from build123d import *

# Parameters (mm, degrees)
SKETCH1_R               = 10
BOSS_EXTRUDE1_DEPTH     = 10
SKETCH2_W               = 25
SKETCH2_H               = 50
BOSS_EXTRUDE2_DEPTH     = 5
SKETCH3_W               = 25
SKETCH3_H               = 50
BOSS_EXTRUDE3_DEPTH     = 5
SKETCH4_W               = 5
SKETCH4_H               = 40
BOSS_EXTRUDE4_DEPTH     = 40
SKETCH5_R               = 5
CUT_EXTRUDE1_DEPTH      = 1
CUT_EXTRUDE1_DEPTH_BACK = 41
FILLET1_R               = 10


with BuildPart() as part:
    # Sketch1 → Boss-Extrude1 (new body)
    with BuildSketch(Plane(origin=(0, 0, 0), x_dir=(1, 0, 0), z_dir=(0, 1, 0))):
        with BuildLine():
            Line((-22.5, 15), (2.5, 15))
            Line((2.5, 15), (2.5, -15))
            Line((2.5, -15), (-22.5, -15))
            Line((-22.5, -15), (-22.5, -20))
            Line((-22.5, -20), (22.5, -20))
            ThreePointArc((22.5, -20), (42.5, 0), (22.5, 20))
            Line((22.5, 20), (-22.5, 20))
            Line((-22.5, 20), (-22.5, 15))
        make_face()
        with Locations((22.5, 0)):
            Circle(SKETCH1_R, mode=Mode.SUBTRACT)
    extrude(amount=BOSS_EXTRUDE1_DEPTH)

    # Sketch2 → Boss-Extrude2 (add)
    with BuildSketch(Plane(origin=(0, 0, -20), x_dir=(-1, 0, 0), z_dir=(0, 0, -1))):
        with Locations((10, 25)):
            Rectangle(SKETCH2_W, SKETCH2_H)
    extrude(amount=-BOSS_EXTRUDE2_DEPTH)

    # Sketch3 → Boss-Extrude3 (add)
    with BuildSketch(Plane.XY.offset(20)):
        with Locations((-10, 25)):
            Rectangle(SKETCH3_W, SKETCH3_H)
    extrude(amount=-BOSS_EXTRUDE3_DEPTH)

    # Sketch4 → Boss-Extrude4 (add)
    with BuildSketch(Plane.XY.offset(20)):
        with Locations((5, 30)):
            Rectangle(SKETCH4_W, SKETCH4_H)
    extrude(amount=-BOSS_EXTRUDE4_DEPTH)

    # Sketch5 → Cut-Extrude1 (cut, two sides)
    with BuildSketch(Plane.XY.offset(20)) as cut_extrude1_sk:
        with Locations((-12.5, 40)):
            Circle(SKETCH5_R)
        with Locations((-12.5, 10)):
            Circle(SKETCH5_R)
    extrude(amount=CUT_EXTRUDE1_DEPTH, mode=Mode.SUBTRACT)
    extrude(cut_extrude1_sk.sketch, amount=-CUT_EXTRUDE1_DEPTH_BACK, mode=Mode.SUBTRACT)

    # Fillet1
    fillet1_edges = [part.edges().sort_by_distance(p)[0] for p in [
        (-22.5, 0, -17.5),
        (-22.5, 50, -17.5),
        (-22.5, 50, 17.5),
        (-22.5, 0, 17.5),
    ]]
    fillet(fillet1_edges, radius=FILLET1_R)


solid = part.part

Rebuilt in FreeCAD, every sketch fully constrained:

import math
import FreeCAD as App
import Part
import Sketcher
from FreeCAD import Vector


def edges_at(feature, points):
    """Names of the edges that pass closest to the given points."""
    edges = feature.Shape.Edges
    near = lambda p: min(range(len(edges)), key=lambda i: edges[i].distToShape(Part.Vertex(*p))[0])
    return sorted({f"Edge{near(p) + 1}" for p in points})

doc = App.newDocument("Part")
params = doc.addObject("Spreadsheet::Sheet", "Params")
for row, (alias, value) in enumerate([
    ("sketch1_diameter", "20 mm"),
    ("sketch1_radius", "20 mm"),
    ("sketch1_width", "25 mm"),
    ("sketch1_width2", "45 mm"),
    ("sketch1_height", "30 mm"),
    ("pad1_length", "10 mm"),
    ("sketch2_width", "25 mm"),
    ("sketch2_height", "50 mm"),
    ("pad2_length", "5 mm"),
    ("sketch3_width", "25 mm"),
    ("sketch3_height", "50 mm"),
    ("pad3_length", "5 mm"),
    ("sketch4_width", "5 mm"),
    ("sketch4_height", "40 mm"),
    ("pad4_length", "40 mm"),
    ("sketch5_diameter", "10 mm"),
    ("fillet_radius", "10 mm"),
], start=1):
    params.set(f"A{row}", alias)
    params.set(f"B{row}", "=" + value)
    params.setAlias(f"B{row}", alias)

body = doc.addObject("PartDesign::Body", "Body")

# Sketch on XZ plane
sketch1 = doc.addObject("Sketcher::SketchObject", "Sketch")
body.addObject(sketch1)
sketch1.AttachmentSupport = (doc.XZ_Plane, [""])
sketch1.MapMode = "FlatFace"
sketch1.addGeometry([
    Part.LineSegment(Vector(-22.5, -15, 0), Vector(2.5, -15, 0)),  # 0
    Part.LineSegment(Vector(2.5, -15, 0), Vector(2.5, 15, 0)),  # 1
    Part.LineSegment(Vector(2.5, 15, 0), Vector(-22.5, 15, 0)),  # 2
    Part.LineSegment(Vector(-22.5, 15, 0), Vector(-22.5, 20, 0)),  # 3
    Part.LineSegment(Vector(-22.5, 20, 0), Vector(22.5, 20, 0)),  # 4
    Part.ArcOfCircle(Part.Circle(Vector(22.5, 0, 0), Vector(0, 0, 1), 20), math.radians(-90), math.radians(90)),  # 5
    Part.LineSegment(Vector(22.5, -20, 0), Vector(-22.5, -20, 0)),  # 6
    Part.LineSegment(Vector(-22.5, -20, 0), Vector(-22.5, -15, 0)),  # 7
    Part.Circle(Vector(22.5, 0, 0), Vector(0, 0, 1), 10),  # 8
], False)
sketch1.addConstraint([
    Sketcher.Constraint("Coincident", 0, 2, 1, 1),
    Sketcher.Constraint("Coincident", 1, 2, 2, 1),
    Sketcher.Constraint("Coincident", 2, 2, 3, 1),
    Sketcher.Constraint("Coincident", 3, 2, 4, 1),
    Sketcher.Constraint("Tangent", 4, 2, 5, 2),
    Sketcher.Constraint("Tangent", 5, 1, 6, 1),
    Sketcher.Constraint("Coincident", 6, 2, 7, 1),
    Sketcher.Constraint("Coincident", 7, 2, 0, 1),
    Sketcher.Constraint("Horizontal", 0),
    Sketcher.Constraint("Vertical", 1),
    Sketcher.Constraint("Horizontal", 2),
    Sketcher.Constraint("Vertical", 3),
    Sketcher.Constraint("Horizontal", 4),
    Sketcher.Constraint("Horizontal", 6),
    Sketcher.Constraint("Vertical", 7),
    Sketcher.Constraint("Coincident", 8, 3, 5, 3),
    Sketcher.Constraint("Symmetric", 3, 2, 5, 1, -1, 1),
    Sketcher.Constraint("Symmetric", 2, 2, 7, 2, -1),
    Sketcher.Constraint("Diameter", 8, 20.0),
    Sketcher.Constraint("Radius", 5, 20.0),
    Sketcher.Constraint("DistanceX", 0, 1, 0, 2, 25.0),
    Sketcher.Constraint("DistanceX", 4, 1, 4, 2, 45.0),
    Sketcher.Constraint("DistanceY", 1, 1, 1, 2, 30.0),
])
sketch1.setExpression("Constraints[18]", "Params.sketch1_diameter")
sketch1.setExpression("Constraints[19]", "Params.sketch1_radius")
sketch1.setExpression("Constraints[20]", "Params.sketch1_width")
sketch1.setExpression("Constraints[21]", "Params.sketch1_width2")
sketch1.setExpression("Constraints[22]", "Params.sketch1_height")
pad1 = doc.addObject("PartDesign::Pad", "Pad")
body.addObject(pad1)
pad1.Profile = sketch1
pad1.setExpression("Length", "Params.pad1_length")
pad1.Reversed = True

# Sketch on XY plane
sketch2 = doc.addObject("Sketcher::SketchObject", "Sketch001")
body.addObject(sketch2)
sketch2.AttachmentSupport = (doc.XY_Plane, [""])
sketch2.MapMode = "FlatFace"
sketch2.AttachmentOffset = App.Placement(Vector(0, 0, -20), App.Rotation())
sketch2.addGeometry([
    Part.LineSegment(Vector(2.5, 50, 0), Vector(2.5, 0, 0)),
    Part.LineSegment(Vector(2.5, 0, 0), Vector(-22.5, 0, 0)),
    Part.LineSegment(Vector(-22.5, 0, 0), Vector(-22.5, 50, 0)),
    Part.LineSegment(Vector(-22.5, 50, 0), Vector(2.5, 50, 0)),
], False)
sketch2.addConstraint([
    Sketcher.Constraint("Coincident", 0, 2, 1, 1),
    Sketcher.Constraint("Coincident", 1, 2, 2, 1),
    Sketcher.Constraint("Coincident", 2, 2, 3, 1),
    Sketcher.Constraint("Coincident", 3, 2, 0, 1),
    Sketcher.Constraint("Vertical", 0),
    Sketcher.Constraint("Horizontal", 1),
    Sketcher.Constraint("Vertical", 2),
    Sketcher.Constraint("Horizontal", 3),
    Sketcher.Constraint("PointOnObject", 0, 2, -1),
    Sketcher.Constraint("DistanceX", 1, 2, 1, 1, 25.0),
    Sketcher.Constraint("DistanceY", 0, 2, 0, 1, 50.0),
    Sketcher.Constraint("DistanceX", -1, 1, 0, 2, 2.5),
])
sketch2.setExpression("Constraints[9]", "Params.sketch2_width")
sketch2.setExpression("Constraints[10]", "Params.sketch2_height")
pad2 = doc.addObject("PartDesign::Pad", "Pad001")
body.addObject(pad2)
pad2.Profile = sketch2
pad2.setExpression("Length", "Params.pad2_length")

# Sketch on XY plane
sketch3 = doc.addObject("Sketcher::SketchObject", "Sketch002")
body.addObject(sketch3)
sketch3.AttachmentSupport = (doc.XY_Plane, [""])
sketch3.MapMode = "FlatFace"
sketch3.AttachmentOffset = App.Placement(Vector(0, 0, 20), App.Rotation())
sketch3.addGeometry([
    Part.LineSegment(Vector(-22.5, 50, 0), Vector(-22.5, 0, 0)),
    Part.LineSegment(Vector(-22.5, 0, 0), Vector(2.5, 0, 0)),
    Part.LineSegment(Vector(2.5, 0, 0), Vector(2.5, 50, 0)),
    Part.LineSegment(Vector(2.5, 50, 0), Vector(-22.5, 50, 0)),
], False)
sketch3.addConstraint([
    Sketcher.Constraint("Coincident", 0, 2, 1, 1),
    Sketcher.Constraint("Coincident", 1, 2, 2, 1),
    Sketcher.Constraint("Coincident", 2, 2, 3, 1),
    Sketcher.Constraint("Coincident", 3, 2, 0, 1),
    Sketcher.Constraint("Vertical", 0),
    Sketcher.Constraint("Horizontal", 1),
    Sketcher.Constraint("Vertical", 2),
    Sketcher.Constraint("Horizontal", 3),
    Sketcher.Constraint("PointOnObject", 0, 2, -1),
    Sketcher.Constraint("DistanceX", 1, 1, 1, 2, 25.0),
    Sketcher.Constraint("DistanceY", 0, 2, 0, 1, 50.0),
    Sketcher.Constraint("DistanceX", 0, 2, -1, 1, 22.5),
])
sketch3.setExpression("Constraints[9]", "Params.sketch3_width")
sketch3.setExpression("Constraints[10]", "Params.sketch3_height")
pad3 = doc.addObject("PartDesign::Pad", "Pad002")
body.addObject(pad3)
pad3.Profile = sketch3
pad3.setExpression("Length", "Params.pad3_length")
pad3.Reversed = True

# Sketch on XY plane
sketch4 = doc.addObject("Sketcher::SketchObject", "Sketch003")
body.addObject(sketch4)
sketch4.AttachmentSupport = (doc.XY_Plane, [""])
sketch4.MapMode = "FlatFace"
sketch4.AttachmentOffset = App.Placement(Vector(0, 0, 20), App.Rotation())
sketch4.addGeometry([
    Part.LineSegment(Vector(2.5, 50, 0), Vector(2.5, 10, 0)),
    Part.LineSegment(Vector(2.5, 10, 0), Vector(7.5, 10, 0)),
    Part.LineSegment(Vector(7.5, 10, 0), Vector(7.5, 50, 0)),
    Part.LineSegment(Vector(7.5, 50, 0), Vector(2.5, 50, 0)),
], False)
sketch4.addConstraint([
    Sketcher.Constraint("Coincident", 0, 2, 1, 1),
    Sketcher.Constraint("Coincident", 1, 2, 2, 1),
    Sketcher.Constraint("Coincident", 2, 2, 3, 1),
    Sketcher.Constraint("Coincident", 3, 2, 0, 1),
    Sketcher.Constraint("Vertical", 0),
    Sketcher.Constraint("Horizontal", 1),
    Sketcher.Constraint("Vertical", 2),
    Sketcher.Constraint("Horizontal", 3),
    Sketcher.Constraint("DistanceX", 1, 1, 1, 2, 5.0),
    Sketcher.Constraint("DistanceY", 0, 2, 0, 1, 40.0),
    Sketcher.Constraint("DistanceY", -1, 1, 0, 2, 10.0),
    Sketcher.Constraint("DistanceX", -1, 1, 0, 2, 2.5),
])
sketch4.setExpression("Constraints[8]", "Params.sketch4_width")
sketch4.setExpression("Constraints[9]", "Params.sketch4_height")
pad4 = doc.addObject("PartDesign::Pad", "Pad003")
body.addObject(pad4)
pad4.Profile = sketch4
pad4.setExpression("Length", "Params.pad4_length")
pad4.Reversed = True

# Sketch on XY plane
sketch5 = doc.addObject("Sketcher::SketchObject", "Sketch004")
body.addObject(sketch5)
sketch5.AttachmentSupport = (doc.XY_Plane, [""])
sketch5.MapMode = "FlatFace"
sketch5.AttachmentOffset = App.Placement(Vector(0, 0, 20), App.Rotation())
sketch5.addGeometry([
    Part.Circle(Vector(-12.5, 40, 0), Vector(0, 0, 1), 5),
    Part.Circle(Vector(-12.5, 10, 0), Vector(0, 0, 1), 5),
], False)
sketch5.addConstraint([
    Sketcher.Constraint("Equal", 0, 1),
    Sketcher.Constraint("Vertical", 0, 3, 1, 3),
    Sketcher.Constraint("Diameter", 0, 10.0),
    Sketcher.Constraint("DistanceY", -1, 1, 0, 3, 40.0),
    Sketcher.Constraint("DistanceY", -1, 1, 1, 3, 10.0),
    Sketcher.Constraint("DistanceX", 0, 3, -1, 1, 12.5),
])
sketch5.setExpression("Constraints[2]", "Params.sketch5_diameter")
pocket1 = doc.addObject("PartDesign::Pocket", "Pocket")
body.addObject(pocket1)
pocket1.Profile = sketch5
pocket1.Type = "ThroughAll"
pocket1.Midplane = True
doc.recompute()

fillet = doc.addObject("PartDesign::Fillet", "Fillet")
body.addObject(fillet)
fillet.Base = (pocket1, edges_at(pocket1, [
    (-22.5, 0, -17.5),
    (-22.5, 50, -17.5),
    (-22.5, 50, 17.5),
    (-22.5, 0, 17.5),
]))
fillet.setExpression("Radius", "Params.fillet_radius")

doc.recompute()
